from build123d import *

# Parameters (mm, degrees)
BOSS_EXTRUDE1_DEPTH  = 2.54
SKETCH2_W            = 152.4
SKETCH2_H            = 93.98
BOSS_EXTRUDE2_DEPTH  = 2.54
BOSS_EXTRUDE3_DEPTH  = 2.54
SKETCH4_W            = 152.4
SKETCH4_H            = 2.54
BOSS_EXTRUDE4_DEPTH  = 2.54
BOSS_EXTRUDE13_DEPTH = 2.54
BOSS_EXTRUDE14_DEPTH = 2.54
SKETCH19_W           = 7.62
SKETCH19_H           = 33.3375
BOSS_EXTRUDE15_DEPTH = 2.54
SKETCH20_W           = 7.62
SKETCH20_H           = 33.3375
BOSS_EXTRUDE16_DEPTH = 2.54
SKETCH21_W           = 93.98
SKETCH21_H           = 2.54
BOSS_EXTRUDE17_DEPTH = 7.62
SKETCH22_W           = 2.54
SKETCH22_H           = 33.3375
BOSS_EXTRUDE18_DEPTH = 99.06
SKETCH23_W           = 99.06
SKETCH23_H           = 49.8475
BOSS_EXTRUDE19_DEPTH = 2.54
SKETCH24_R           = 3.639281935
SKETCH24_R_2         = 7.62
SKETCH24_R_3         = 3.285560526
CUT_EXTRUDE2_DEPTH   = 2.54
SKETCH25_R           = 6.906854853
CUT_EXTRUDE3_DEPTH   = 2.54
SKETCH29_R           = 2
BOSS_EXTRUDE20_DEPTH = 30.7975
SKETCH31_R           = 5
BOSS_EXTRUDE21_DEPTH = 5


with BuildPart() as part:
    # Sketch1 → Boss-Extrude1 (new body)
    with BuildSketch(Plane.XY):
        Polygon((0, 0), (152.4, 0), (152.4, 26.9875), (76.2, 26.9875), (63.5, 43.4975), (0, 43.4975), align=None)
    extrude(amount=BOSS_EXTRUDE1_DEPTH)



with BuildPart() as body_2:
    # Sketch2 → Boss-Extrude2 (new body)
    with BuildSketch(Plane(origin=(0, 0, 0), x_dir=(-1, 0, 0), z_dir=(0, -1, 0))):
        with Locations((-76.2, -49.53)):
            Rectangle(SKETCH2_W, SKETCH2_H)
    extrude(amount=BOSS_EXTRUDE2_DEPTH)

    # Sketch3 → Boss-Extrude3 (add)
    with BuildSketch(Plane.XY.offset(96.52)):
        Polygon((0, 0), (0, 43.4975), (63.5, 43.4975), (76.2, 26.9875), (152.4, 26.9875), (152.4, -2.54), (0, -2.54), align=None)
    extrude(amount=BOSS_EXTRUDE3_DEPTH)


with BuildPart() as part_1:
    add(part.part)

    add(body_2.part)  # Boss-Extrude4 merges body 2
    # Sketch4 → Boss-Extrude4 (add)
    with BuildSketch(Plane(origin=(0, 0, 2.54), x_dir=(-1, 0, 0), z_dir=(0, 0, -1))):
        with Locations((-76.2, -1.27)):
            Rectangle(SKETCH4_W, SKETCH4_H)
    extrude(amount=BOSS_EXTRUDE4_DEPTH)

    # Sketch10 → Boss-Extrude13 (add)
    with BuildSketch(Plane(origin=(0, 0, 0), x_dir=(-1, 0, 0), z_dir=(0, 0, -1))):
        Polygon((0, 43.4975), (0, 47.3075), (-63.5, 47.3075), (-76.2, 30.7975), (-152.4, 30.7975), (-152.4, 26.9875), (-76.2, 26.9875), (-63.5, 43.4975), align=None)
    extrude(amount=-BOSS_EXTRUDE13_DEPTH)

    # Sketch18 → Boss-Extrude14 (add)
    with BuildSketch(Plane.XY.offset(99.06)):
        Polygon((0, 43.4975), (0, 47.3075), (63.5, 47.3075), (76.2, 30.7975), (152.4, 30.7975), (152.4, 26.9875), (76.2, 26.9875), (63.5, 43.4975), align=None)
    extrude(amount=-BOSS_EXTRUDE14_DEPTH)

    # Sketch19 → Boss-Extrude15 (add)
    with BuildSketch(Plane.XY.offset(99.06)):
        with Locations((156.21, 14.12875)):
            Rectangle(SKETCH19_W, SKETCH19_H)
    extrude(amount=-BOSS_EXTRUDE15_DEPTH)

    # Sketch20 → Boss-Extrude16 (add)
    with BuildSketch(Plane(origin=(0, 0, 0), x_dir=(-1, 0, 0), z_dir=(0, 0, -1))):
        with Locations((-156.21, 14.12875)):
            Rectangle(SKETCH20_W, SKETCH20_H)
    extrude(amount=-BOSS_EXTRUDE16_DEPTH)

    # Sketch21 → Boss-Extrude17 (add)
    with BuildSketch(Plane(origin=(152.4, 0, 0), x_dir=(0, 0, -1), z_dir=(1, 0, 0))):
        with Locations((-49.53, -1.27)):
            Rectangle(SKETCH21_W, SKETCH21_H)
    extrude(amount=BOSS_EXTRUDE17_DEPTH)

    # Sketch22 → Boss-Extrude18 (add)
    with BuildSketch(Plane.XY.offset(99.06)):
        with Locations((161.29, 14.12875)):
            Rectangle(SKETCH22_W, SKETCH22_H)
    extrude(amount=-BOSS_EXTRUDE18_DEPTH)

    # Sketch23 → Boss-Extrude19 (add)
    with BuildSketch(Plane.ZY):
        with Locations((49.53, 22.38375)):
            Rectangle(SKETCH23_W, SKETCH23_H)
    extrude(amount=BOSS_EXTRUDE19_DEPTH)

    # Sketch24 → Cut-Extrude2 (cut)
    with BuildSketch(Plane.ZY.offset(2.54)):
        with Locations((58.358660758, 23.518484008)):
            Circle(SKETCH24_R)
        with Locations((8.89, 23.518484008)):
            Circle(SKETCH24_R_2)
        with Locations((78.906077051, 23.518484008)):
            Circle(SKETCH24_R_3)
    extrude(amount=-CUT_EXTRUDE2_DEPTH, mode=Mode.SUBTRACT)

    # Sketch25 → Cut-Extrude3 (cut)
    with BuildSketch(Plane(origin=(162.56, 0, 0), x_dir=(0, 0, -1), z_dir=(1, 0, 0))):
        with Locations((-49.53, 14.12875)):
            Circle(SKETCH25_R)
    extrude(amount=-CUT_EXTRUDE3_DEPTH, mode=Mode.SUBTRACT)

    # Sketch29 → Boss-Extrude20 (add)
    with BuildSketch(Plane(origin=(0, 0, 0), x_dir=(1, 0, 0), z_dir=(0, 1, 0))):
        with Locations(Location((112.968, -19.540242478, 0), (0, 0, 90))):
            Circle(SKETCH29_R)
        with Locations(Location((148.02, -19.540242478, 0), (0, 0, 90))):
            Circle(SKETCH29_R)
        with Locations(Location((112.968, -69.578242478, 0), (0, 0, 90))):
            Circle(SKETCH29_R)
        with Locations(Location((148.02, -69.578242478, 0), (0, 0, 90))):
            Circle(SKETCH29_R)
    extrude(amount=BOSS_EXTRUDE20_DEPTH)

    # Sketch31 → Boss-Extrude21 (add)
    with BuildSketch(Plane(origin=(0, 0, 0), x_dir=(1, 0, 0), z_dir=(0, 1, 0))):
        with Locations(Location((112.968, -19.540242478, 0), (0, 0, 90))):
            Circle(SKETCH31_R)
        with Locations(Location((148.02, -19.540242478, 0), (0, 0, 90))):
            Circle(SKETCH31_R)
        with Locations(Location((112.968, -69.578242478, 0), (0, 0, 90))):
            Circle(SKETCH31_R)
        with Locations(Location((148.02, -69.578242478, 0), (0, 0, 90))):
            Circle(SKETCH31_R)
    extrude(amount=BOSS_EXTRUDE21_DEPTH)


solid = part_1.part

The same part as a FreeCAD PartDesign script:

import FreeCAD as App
import Part
import Sketcher

V = App.Vector
Q = App.Units.Quantity


def add_polygon(sketch, points):
    """Adds a closed chain of lines whose ends are joined by coincident constraints."""
    first, n = sketch.GeometryCount, len(points)
    for a, b in zip(points, points[1:] + points[:1]):
        sketch.addGeometry(Part.LineSegment(App.Vector(*a, 0), App.Vector(*b, 0)), False)
    for i in range(n):
        sketch.addConstraint(Sketcher.Constraint("Coincident", first + i, 2, first + (i + 1) % n, 1))

doc = App.newDocument("Part")
params = doc.addObject("Spreadsheet::Sheet", "Params")
for row, (alias, value) in enumerate([
    ("sketch1_width", "6 in"),
    ("sketch1_width2", "3 in"),
    ("sketch1_width3", "2.5 in"),
    ("sketch1_height", "1.0625 in"),
    ("pad1_length", "0.1 in"),
    ("sketch2_width", "6 in"),
    ("sketch2_height", "3.7 in"),
    ("pad2_length", "0.1 in"),
    ("sketch3_width", "6 in"),
    ("sketch3_width2", "3 in"),
    ("sketch3_width3", "2.5 in"),
    ("sketch3_height", "1.8125 in"),
    ("pad3_length", "0.1 in"),
    ("sketch4_width", "6 in"),
    ("sketch4_height", "0.1 in"),
    ("pad4_length", "0.1 in"),
    ("sketch5_width", "3 in"),
    ("sketch5_width2", "2.5 in"),
    ("sketch5_height", "0.15 in"),
    ("pad5_length", "0.1 in"),
    ("sketch6_width", "3 in"),
    ("sketch6_width2", "2.5 in"),
    ("sketch6_height", "0.15 in"),
    ("pad6_length", "0.1 in"),
    ("sketch7_width", "0.3 in"),
    ("sketch7_height", "1.3125 in"),
    ("pad7_length", "0.1 in"),
    ("sketch8_width", "0.3 in"),
    ("sketch8_height", "1.3125 in"),
    ("pad8_length", "0.1 in"),
    ("sketch9_width", "0.1 in"),
    ("sketch9_height", "3.7 in"),
    ("pad9_length", "0.3 in"),
    ("sketch10_width", "0.1 in"),
    ("sketch10_height", "1.3125 in"),
    ("pad10_length", "3.9 in"),
    ("sketch11_height", "3.9 in"),
    ("pad11_length", "0.1 in"),
    ("sketch12_diameter", "0.6 in"),
    ("pocket1_length", "0.1 in"),
    ("pocket2_length", "0.1 in"),
    ("pad12_length", "1.2125 in"),
    ("pad13_length", "5 mm"),
], start=1):
    params.set(f"A{row}", alias)
    params.set(f"B{row}", "=" + value)
    params.setAlias(f"B{row}", alias)

body = doc.addObject("PartDesign::Body", "Body")

# Sketch on XY plane
sketch1 = body.newObject("Sketcher::SketchObject", "Sketch")
sketch1.AttachmentSupport = (doc.getObject("XY_Plane"), [""])
sketch1.MapMode = "FlatFace"
add_polygon(sketch1, [(0, 0), (152, 0), (152, 27), (76, 27), (64, 43), (0, 43)])  # lines 0-5
sketch1.addConstraint([
    Sketcher.Constraint("Horizontal", 0),
    Sketcher.Constraint("Vertical", 1),
    Sketcher.Constraint("Horizontal", 2),
    Sketcher.Constraint("Horizontal", 4),
    Sketcher.Constraint("Vertical", 5),
    Sketcher.Constraint("Coincident", 5, 2, -1, 1),
    Sketcher.Constraint("DistanceX", 0, 1, 0, 2, Q("6 in")),
    Sketcher.Constraint("DistanceX", 2, 2, 2, 1, Q("3 in")),
    Sketcher.Constraint("DistanceX", 4, 2, 4, 1, Q("2.5 in")),
    Sketcher.Constraint("DistanceY", 1, 1, 1, 2, Q("1.0625 in")),
    Sketcher.Constraint("DistanceY", 2, 2, 3, 2, Q("0.65 in")),
])
sketch1.setExpression("Constraints[12]", "Params.sketch1_width")
sketch1.setExpression("Constraints[13]", "Params.sketch1_width2")
sketch1.setExpression("Constraints[14]", "Params.sketch1_width3")
sketch1.setExpression("Constraints[15]", "Params.sketch1_height")
pad1 = body.newObject("PartDesign::Pad", "Pad")
pad1.Profile = sketch1
pad1.setExpression("Length", "Params.pad1_length")
body2 = doc.addObject("PartDesign::Body", "Body001")

# Sketch on XZ plane
sketch2 = body2.newObject("Sketcher::SketchObject", "Sketch001")
sketch2.AttachmentSupport = (doc.getObject("XZ_Plane001"), [""])
sketch2.MapMode = "FlatFace"
add_polygon(sketch2, [(152, 3), (152, 97), (0, 97), (0, 3)])  # lines 0-3
sketch2.addConstraint([
    Sketcher.Constraint("Vertical", 0),
    Sketcher.Constraint("Horizontal", 1),
    Sketcher.Constraint("Vertical", 2),
    Sketcher.Constraint("Horizontal", 3),
    Sketcher.Constraint("PointOnObject", 1, 2, -2),
    Sketcher.Constraint("DistanceX", 1, 2, 1, 1, Q("6 in")),
    Sketcher.Constraint("DistanceY", 0, 1, 0, 2, Q("3.7 in")),
    Sketcher.Constraint("DistanceY", -1, 1, 0, 2, Q("3.8 in")),
])
sketch2.setExpression("Constraints[9]", "Params.sketch2_width")
sketch2.setExpression("Constraints[10]", "Params.sketch2_height")
pad2 = body2.newObject("PartDesign::Pad", "Pad001")
pad2.Profile = sketch2
pad2.setExpression("Length", "Params.pad2_length")

# Sketch on XY plane
sketch3 = body2.newObject("Sketcher::SketchObject", "Sketch002")
sketch3.AttachmentSupport = (doc.getObject("XY_Plane001"), [""])
sketch3.MapMode = "FlatFace"
sketch3.AttachmentOffset = App.Placement(V(0, 0, 3.8 * 25.4), App.Rotation())
add_polygon(sketch3, [(0, 43), (0, -3), (152, -3), (152, 27), (76, 27), (64, 43)])  # lines 0-5
sketch3.addConstraint([
    Sketcher.Constraint("Vertical", 0),
    Sketcher.Constraint("Horizontal", 1),
    Sketcher.Constraint("Vertical", 2),
    Sketcher.Constraint("Horizontal", 3),
    Sketcher.Constraint("Horizontal", 5),
    Sketcher.Constraint("PointOnObject", 0, 2, -2),
    Sketcher.Constraint("DistanceX", 1, 1, 1, 2, Q("6 in")),
    Sketcher.Constraint("DistanceX", 3, 2, 3, 1, Q("3 in")),
    Sketcher.Constraint("DistanceX", 5, 2, 5, 1, Q("2.5 in")),
    Sketcher.Constraint("DistanceY", 0, 2, -1, 1, Q("0.1 in")),
    Sketcher.Constraint("DistanceY", 0, 2, 0, 1, Q("1.8125 in")),
    Sketcher.Constraint("DistanceY", 3, 2, 4, 2, Q("0.65 in")),
])
sketch3.setExpression("Constraints[12]", "Params.sketch3_width")
sketch3.setExpression("Constraints[13]", "Params.sketch3_width2")
sketch3.setExpression("Constraints[14]", "Params.sketch3_width3")
sketch3.setExpression("Constraints[16]", "Params.sketch3_height")
pad3 = body2.newObject("PartDesign::Pad", "Pad002")
pad3.Profile = sketch3
pad3.setExpression("Length", "Params.pad3_length")
body.AllowCompound = True
doc.recompute()

boolean = body.newObject("PartDesign::Boolean", "Boolean")
boolean.Type = "Fuse"
boolean.addObjects([body2])

# Sketch on XY plane
sketch4 = body.newObject("Sketcher::SketchObject", "Sketch003")
sketch4.AttachmentSupport = (doc.getObject("XY_Plane"), [""])
sketch4.MapMode = "FlatFace"
sketch4.AttachmentOffset = App.Placement(V(0, 0, 0.1 * 25.4), App.Rotation())
add_polygon(sketch4, [(152.4, 0), (152.4, -2.5), (0, -2.5), (0, 0)])  # lines 0-3
sketch4.addConstraint([
    Sketcher.Constraint("Vertical", 0),
    Sketcher.Constraint("Horizontal", 1),
    Sketcher.Constraint("Vertical", 2),
    Sketcher.Constraint("Horizontal", 3),
    Sketcher.Constraint("Coincident", 2, 2, -1, 1),
    Sketcher.Constraint("DistanceX", 1, 2, 1, 1, Q("6 in")),
    Sketcher.Constraint("DistanceY", 0, 2, 0, 1, Q("0.1 in")),
])
sketch4.setExpression("Constraints[9]", "Params.sketch4_width")
sketch4.setExpression("Constraints[10]", "Params.sketch4_height")
pad4 = body.newObject("PartDesign::Pad", "Pad003")
pad4.Profile = sketch4
pad4.setExpression("Length", "Params.pad4_length")
pad4.Reversed = True

# Sketch on XY plane
sketch5 = body.newObject("Sketcher::SketchObject", "Sketch004")
sketch5.AttachmentSupport = (doc.getObject("XY_Plane"), [""])
sketch5.MapMode = "FlatFace"
add_polygon(sketch5, [(0, 43.5), (0, 47.3), (63.5, 47.3), (76.2, 30.8), (152.4, 30.8), (152.4, 27), (76.2, 27), (63.5, 43.5)])  # lines 0-7
sketch5.addConstraint([
    Sketcher.Constraint("Vertical", 0),
    Sketcher.Constraint("Horizontal", 1),
    Sketcher.Constraint("Horizontal", 3),
    Sketcher.Constraint("Vertical", 4),
    Sketcher.Constraint("Horizontal", 5),
    Sketcher.Constraint("Horizontal", 7),
    Sketcher.Constraint("PointOnObject", 0, 2, -2),
    Sketcher.Constraint("Parallel", 2, 6),
    Sketcher.Constraint("Vertical", 2, 2, 5, 2),
    Sketcher.Constraint("Vertical", 1, 2, 6, 2),
    Sketcher.Constraint("DistanceX", 3, 1, 3, 2, Q("3 in")),
    Sketcher.Constraint("DistanceX", 1, 1, 1, 2, Q("2.5 in")),
    Sketcher.Constraint("DistanceX", -1, 1, 2, 2, Q("3 in")),
    Sketcher.Constraint("DistanceY", 0, 1, 0, 2, Q("0.15 in")),
    Sketcher.Constraint("DistanceY", 4, 2, 1, 2, Q("0.8 in")),
    Sketcher.Constraint("DistanceY", -1, 1, 4, 2, Q("1.0625 in")),
])
sketch5.setExpression("Constraints[18]", "Params.sketch5_width")
sketch5.setExpression("Constraints[19]", "Params.sketch5_width2")
sketch5.setExpression("Constraints[21]", "Params.sketch5_height")
pad5 = body.newObject("PartDesign::Pad", "Pad004")
pad5.Profile = sketch5
pad5.setExpression("Length", "Params.pad5_length")

# Sketch on XY plane
sketch6 = body.newObject("Sketcher::SketchObject", "Sketch005")
sketch6.AttachmentSupport = (doc.getObject("XY_Plane"), [""])
sketch6.MapMode = "FlatFace"
sketch6.AttachmentOffset = App.Placement(V(0, 0, 3.9 * 25.4), App.Rotation())
add_polygon(sketch6, [(0, 47.3), (0, 43.5), (63.5, 43.5), (76.2, 27), (152.4, 27), (152.4, 30.8), (76.2, 30.8), (63.5, 47.3)])  # lines 0-7
sketch6.addConstraint([
    Sketcher.Constraint("Vertical", 0),
    Sketcher.Constraint("Horizontal", 1),
    Sketcher.Constraint("Horizontal", 3),
    Sketcher.Constraint("Vertical", 4),
    Sketcher.Constraint("Horizontal", 5),
    Sketcher.Constraint("Horizontal", 7),
    Sketcher.Constraint("PointOnObject", 0, 2, -2),
    Sketcher.Constraint("Parallel", 2, 6),
    Sketcher.Constraint("Vertical", 2, 2, 5, 2),
    Sketcher.Constraint("Vertical", 1, 2, 6, 2),
    Sketcher.Constraint("DistanceX", 3, 1, 3, 2, Q("3 in")),
    Sketcher.Constraint("DistanceX", 1, 1, 1, 2, Q("2.5 in")),
    Sketcher.Constraint("DistanceX", -1, 1, 2, 2, Q("3 in")),
    Sketcher.Constraint("DistanceY", 0, 2, 0, 1, Q("0.15 in")),
    Sketcher.Constraint("DistanceY", 4, 2, 1, 2, Q("0.5 in")),
    Sketcher.Constraint("DistanceY", -1, 1, 2, 2, Q("1.0625 in")),
])
sketch6.setExpression("Constraints[18]", "Params.sketch6_width")
sketch6.setExpression("Constraints[19]", "Params.sketch6_width2")
sketch6.setExpression("Constraints[21]", "Params.sketch6_height")
pad6 = body.newObject("PartDesign::Pad", "Pad005")
pad6.Profile = sketch6
pad6.setExpression("Length", "Params.pad6_length")
pad6.Reversed = True

# Sketch on XY plane
sketch7 = body.newObject("Sketcher::SketchObject", "Sketch006")
sketch7.AttachmentSupport = (doc.getObject("XY_Plane"), [""])
sketch7.MapMode = "FlatFace"
sketch7.AttachmentOffset = App.Placement(V(0, 0, 3.9 * 25.4), App.Rotation())
add_polygon(sketch7, [(152, 31), (152, -3), (160, -3), (160, 31)])  # lines 0-3
sketch7.addConstraint([
    Sketcher.Constraint("Vertical", 0),
    Sketcher.Constraint("Horizontal", 1),
    Sketcher.Constraint("Vertical", 2),
    Sketcher.Constraint("Horizontal", 3),
    Sketcher.Constraint("DistanceX", 1, 1, 1, 2, Q("0.3 in")),
    Sketcher.Constraint("DistanceX", -1, 1, 0, 2, Q("6 in")),
    Sketcher.Constraint("DistanceY", 0, 2, -1, 1, Q("0.1 in")),
    Sketcher.Constraint("DistanceY", 0, 2, 0, 1, Q("1.3125 in")),
])
sketch7.setExpression("Constraints[8]", "Params.sketch7_width")
sketch7.setExpression("Constraints[11]", "Params.sketch7_height")
pad7 = body.newObject("PartDesign::Pad", "Pad006")
pad7.Profile = sketch7
pad7.setExpression("Length", "Params.pad7_length")
pad7.Reversed = True

# Sketch on XY plane
sketch8 = body.newObject("Sketcher::SketchObject", "Sketch007")
sketch8.AttachmentSupport = (doc.getObject("XY_Plane"), [""])
sketch8.MapMode = "FlatFace"
add_polygon(sketch8, [(160, 31), (160, -3), (152, -3), (152, 31)])  # lines 0-3
sketch8.addConstraint([
    Sketcher.Constraint("Vertical", 0),
    Sketcher.Constraint("Horizontal", 1),
    Sketcher.Constraint("Vertical", 2),
    Sketcher.Constraint("Horizontal", 3),
    Sketcher.Constraint("DistanceX", 1, 2, 1, 1, Q("0.3 in")),
    Sketcher.Constraint("DistanceX", -1, 1, 1, 2, Q("6 in")),
    Sketcher.Constraint("DistanceY", 0, 2, -1, 1, Q("0.1 in")),
    Sketcher.Constraint("DistanceY", 0, 2, 0, 1, Q("1.3125 in")),
])
sketch8.setExpression("Constraints[8]", "Params.sketch8_width")
sketch8.setExpression("Constraints[11]", "Params.sketch8_height")
pad8 = body.newObject("PartDesign::Pad", "Pad007")
pad8.Profile = sketch8
pad8.setExpression("Length", "Params.pad8_length")

# Sketch on YZ plane
sketch9 = body.newObject("Sketcher::SketchObject", "Sketch008")
sketch9.AttachmentSupport = (doc.getObject("YZ_Plane"), [""])
sketch9.MapMode = "FlatFace"
sketch9.AttachmentOffset = App.Placement(V(0, 0, 6 * 25.4), App.Rotation())
add_polygon(sketch9, [(0, 96.5), (-2.5, 96.5), (-2.5, 2.5), (0, 2.5)])  # lines 0-3
sketch9.addConstraint([
    Sketcher.Constraint("Horizontal", 0),
    Sketcher.Constraint("Vertical", 1),
    Sketcher.Constraint("Horizontal", 2),
    Sketcher.Constraint("Vertical", 3),
    Sketcher.Constraint("PointOnObject", 2, 2, -2),
    Sketcher.Constraint("DistanceX", 0, 2, 0, 1, Q("0.1 in")),
    Sketcher.Constraint("DistanceY", 1, 2, 1, 1, Q("3.7 in")),
    Sketcher.Constraint("DistanceY", -1, 1, 0, 2, Q("3.8 in")),
])
sketch9.setExpression("Constraints[9]", "Params.sketch9_width")
sketch9.setExpression("Constraints[10]", "Params.sketch9_height")
pad9 = body.newObject("PartDesign::Pad", "Pad008")
pad9.Profile = sketch9
pad9.setExpression("Length", "Params.pad9_length")

# Sketch on XY plane
sketch10 = body.newObject("Sketcher::SketchObject", "Sketch009")
sketch10.AttachmentSupport = (doc.getObject("XY_Plane"), [""])
sketch10.MapMode = "FlatFace"
sketch10.AttachmentOffset = App.Placement(V(0, 0, 3.9 * 25.4), App.Rotation())
add_polygon(sketch10, [(160, 30.8), (160, -2.5), (162.6, -2.5), (162.6, 30.8)])  # lines 0-3
sketch10.addConstraint([
    Sketcher.Constraint("Vertical", 0),
    Sketcher.Constraint("Horizontal", 1),
    Sketcher.Constraint("Vertical", 2),
    Sketcher.Constraint("Horizontal", 3),
    Sketcher.Constraint("DistanceX", 1, 1, 1, 2, Q("0.1 in")),
    Sketcher.Constraint("DistanceX", -1, 1, 0, 2, Q("6.3 in")),
    Sketcher.Constraint("DistanceY", 0, 2, -1, 1, Q("0.1 in")),
    Sketcher.Constraint("DistanceY", 0, 2, 0, 1, Q("1.3125 in")),
])
sketch10.setExpression("Constraints[8]", "Params.sketch10_width")
sketch10.setExpression("Constraints[11]", "Params.sketch10_height")
pad10 = body.newObject("PartDesign::Pad", "Pad009")
pad10.Profile = sketch10
pad10.setExpression("Length", "Params.pad10_length")
pad10.Reversed = True

# Sketch on YZ plane
sketch11 = body.newObject("Sketcher::SketchObject", "Sketch010")
sketch11.AttachmentSupport = (doc.getObject("YZ_Plane"), [""])
sketch11.MapMode = "FlatFace"
add_polygon(sketch11, [(47, 0), (-3, 0), (-3, 99), (47, 99)])  # lines 0-3
sketch11.addConstraint([
    Sketcher.Constraint("Horizontal", 0),
    Sketcher.Constraint("Vertical", 1),
    Sketcher.Constraint("Horizontal", 2),
    Sketcher.Constraint("Vertical", 3),
    Sketcher.Constraint("PointOnObject", 0, 2, -1),
    Sketcher.Constraint("DistanceY", 1, 1, 1, 2, Q("3.9 in")),
    Sketcher.Constraint("DistanceX", 0, 2, -1, 1, Q("0.1 in")),
    Sketcher.Constraint("DistanceX", 0, 2, 0, 1, Q("1.9625 in")),
])
sketch11.setExpression("Constraints[9]", "Params.sketch11_height")
pad11 = body.newObject("PartDesign::Pad", "Pad010")
pad11.Profile = sketch11
pad11.setExpression("Length", "Params.pad11_length")
pad11.Reversed = True

# Sketch on YZ plane
sketch12 = body.newObject("Sketcher::SketchObject", "Sketch011")
sketch12.AttachmentSupport = (doc.getObject("YZ_Plane"), [""])
sketch12.MapMode = "FlatFace"
sketch12.AttachmentOffset = App.Placement(V(0, 0, -0.1 * 25.4), App.Rotation())
sketch12.addGeometry([
    Part.Circle(V(23.5, 58.4, 0), V(0, 0, 1), 3.6),
    Part.Circle(V(23.5, 8.9, 0), V(0, 0, 1), 7.6),
    Part.Circle(V(23.5, 78.9, 0), V(0, 0, 1), 3.3),
], False)
sketch12.addConstraint([
    Sketcher.Constraint("Vertical", 0, 3, 1, 3),
    Sketcher.Constraint("Vertical", 1, 3, 2, 3),
    Sketcher.Constraint("Diameter", 1, Q("0.6 in")),
    Sketcher.Constraint("DistanceY", -1, 1, 1, 3, Q("0.35 in")),
    Sketcher.Constraint("Diameter", 2, Q("6.571121 mm")),
    Sketcher.Constraint("Diameter", 0, Q("7.278564 mm")),
    Sketcher.Constraint("DistanceY", -1, 1, 0, 3, Q("58.358661 mm")),
    Sketcher.Constraint("DistanceX", -1, 1, 0, 3, Q("23.518484 mm")),
    Sketcher.Constraint("DistanceY", -1, 1, 2, 3, Q("78.906077 mm")),
])
sketch12.setExpression("Constraints[2]", "Params.sketch12_diameter")
pocket1 = body.newObject("PartDesign::Pocket", "Pocket")
pocket1.Profile = sketch12
pocket1.setExpression("Length", "Params.pocket1_length")
pocket1.Reversed = True

# Sketch on YZ plane
sketch13 = body.newObject("Sketcher::SketchObject", "Sketch012")
sketch13.AttachmentSupport = (doc.getObject("YZ_Plane"), [""])
sketch13.MapMode = "FlatFace"
sketch13.AttachmentOffset = App.Placement(V(0, 0, 6.4 * 25.4), App.Rotation())
sketch13.addGeometry(Part.Circle(V(14, 50, 0), V(0, 0, 1), 7), False)
sketch13.addConstraint([
    Sketcher.Constraint("DistanceY", -1, 1, 0, 3, Q("1.95 in")),
    Sketcher.Constraint("Diameter", 0, Q("13.81371 mm")),
    Sketcher.Constraint("DistanceX", -1, 1, 0, 3, Q("14.12875 mm")),
])
pocket2 = body.newObject("PartDesign::Pocket", "Pocket001")
pocket2.Profile = sketch13
pocket2.setExpression("Length", "Params.pocket2_length")

# Sketch on XZ plane
sketch14 = body.newObject("Sketcher::SketchObject", "Sketch013")
sketch14.AttachmentSupport = (doc.getObject("XZ_Plane"), [""])
sketch14.MapMode = "FlatFace"
sketch14.addGeometry([
    Part.Circle(V(113, 19.5, 0), V(0, 0, 1), 2),
    Part.Circle(V(148, 19.5, 0), V(0, 0, 1), 2),
    Part.Circle(V(113, 69.6, 0), V(0, 0, 1), 2),
    Part.Circle(V(148, 69.6, 0), V(0, 0, 1), 2),
], False)
sketch14.addConstraint([
    Sketcher.Constraint("Equal", 0, 1),
    Sketcher.Constraint("Equal", 1, 2),
    Sketcher.Constraint("Equal", 2, 3),
    Sketcher.Constraint("Horizontal", 0, 3, 1, 3),
    Sketcher.Constraint("Horizontal", 2, 3, 3, 3),
    Sketcher.Constraint("Vertical", 0, 3, 2, 3),
    Sketcher.Constraint("Vertical", 1, 3, 3, 3),
    Sketcher.Constraint("Diameter", 0, Q("4 mm")),
    Sketcher.Constraint("DistanceX", 0, 3, 1, 3, Q("1.38 in")),
    Sketcher.Constraint("DistanceY", 0, 3, 2, 3, Q("1.97 in")),
    Sketcher.Constraint("DistanceX", -1, 1, 0, 3, Q("112.968 mm")),
    Sketcher.Constraint("DistanceY", -1, 1, 0, 3, Q("19.540242 mm")),
])
pad12 = body.newObject("PartDesign::Pad", "Pad011")
pad12.Profile = sketch14
pad12.setExpression("Length", "Params.pad12_length")
pad12.Reversed = True

# Sketch on XZ plane
sketch15 = body.newObject("Sketcher::SketchObject", "Sketch014")
sketch15.AttachmentSupport = (doc.getObject("XZ_Plane"), [""])
sketch15.MapMode = "FlatFace"
sketch15.addGeometry([
    Part.Circle(V(113, 20, 0), V(0, 0, 1), 5),
    Part.Circle(V(148, 20, 0), V(0, 0, 1), 5),
    Part.Circle(V(113, 70, 0), V(0, 0, 1), 5),
    Part.Circle(V(148, 70, 0), V(0, 0, 1), 5),
], False)
sketch15.addConstraint([
    Sketcher.Constraint("Equal", 0, 1),
    Sketcher.Constraint("Equal", 1, 2),
    Sketcher.Constraint("Equal", 2, 3),
    Sketcher.Constraint("Horizontal", 0, 3, 1, 3),
    Sketcher.Constraint("Horizontal", 2, 3, 3, 3),
    Sketcher.Constraint("Vertical", 0, 3, 2, 3),
    Sketcher.Constraint("Vertical", 1, 3, 3, 3),
    Sketcher.Constraint("Diameter", 0, Q("10 mm")),
    Sketcher.Constraint("DistanceX", 0, 3, 1, 3, Q("1.38 in")),
    Sketcher.Constraint("DistanceY", 0, 3, 2, 3, Q("1.97 in")),
    Sketcher.Constraint("DistanceX", -1, 1, 0, 3, Q("112.968 mm")),
    Sketcher.Constraint("DistanceY", -1, 1, 0, 3, Q("19.540242 mm")),
])
pad13 = body.newObject("PartDesign::Pad", "Pad012")
pad13.Profile = sketch15
pad13.setExpression("Length", "Params.pad13_length")
pad13.Reversed = True

doc.recompute()
